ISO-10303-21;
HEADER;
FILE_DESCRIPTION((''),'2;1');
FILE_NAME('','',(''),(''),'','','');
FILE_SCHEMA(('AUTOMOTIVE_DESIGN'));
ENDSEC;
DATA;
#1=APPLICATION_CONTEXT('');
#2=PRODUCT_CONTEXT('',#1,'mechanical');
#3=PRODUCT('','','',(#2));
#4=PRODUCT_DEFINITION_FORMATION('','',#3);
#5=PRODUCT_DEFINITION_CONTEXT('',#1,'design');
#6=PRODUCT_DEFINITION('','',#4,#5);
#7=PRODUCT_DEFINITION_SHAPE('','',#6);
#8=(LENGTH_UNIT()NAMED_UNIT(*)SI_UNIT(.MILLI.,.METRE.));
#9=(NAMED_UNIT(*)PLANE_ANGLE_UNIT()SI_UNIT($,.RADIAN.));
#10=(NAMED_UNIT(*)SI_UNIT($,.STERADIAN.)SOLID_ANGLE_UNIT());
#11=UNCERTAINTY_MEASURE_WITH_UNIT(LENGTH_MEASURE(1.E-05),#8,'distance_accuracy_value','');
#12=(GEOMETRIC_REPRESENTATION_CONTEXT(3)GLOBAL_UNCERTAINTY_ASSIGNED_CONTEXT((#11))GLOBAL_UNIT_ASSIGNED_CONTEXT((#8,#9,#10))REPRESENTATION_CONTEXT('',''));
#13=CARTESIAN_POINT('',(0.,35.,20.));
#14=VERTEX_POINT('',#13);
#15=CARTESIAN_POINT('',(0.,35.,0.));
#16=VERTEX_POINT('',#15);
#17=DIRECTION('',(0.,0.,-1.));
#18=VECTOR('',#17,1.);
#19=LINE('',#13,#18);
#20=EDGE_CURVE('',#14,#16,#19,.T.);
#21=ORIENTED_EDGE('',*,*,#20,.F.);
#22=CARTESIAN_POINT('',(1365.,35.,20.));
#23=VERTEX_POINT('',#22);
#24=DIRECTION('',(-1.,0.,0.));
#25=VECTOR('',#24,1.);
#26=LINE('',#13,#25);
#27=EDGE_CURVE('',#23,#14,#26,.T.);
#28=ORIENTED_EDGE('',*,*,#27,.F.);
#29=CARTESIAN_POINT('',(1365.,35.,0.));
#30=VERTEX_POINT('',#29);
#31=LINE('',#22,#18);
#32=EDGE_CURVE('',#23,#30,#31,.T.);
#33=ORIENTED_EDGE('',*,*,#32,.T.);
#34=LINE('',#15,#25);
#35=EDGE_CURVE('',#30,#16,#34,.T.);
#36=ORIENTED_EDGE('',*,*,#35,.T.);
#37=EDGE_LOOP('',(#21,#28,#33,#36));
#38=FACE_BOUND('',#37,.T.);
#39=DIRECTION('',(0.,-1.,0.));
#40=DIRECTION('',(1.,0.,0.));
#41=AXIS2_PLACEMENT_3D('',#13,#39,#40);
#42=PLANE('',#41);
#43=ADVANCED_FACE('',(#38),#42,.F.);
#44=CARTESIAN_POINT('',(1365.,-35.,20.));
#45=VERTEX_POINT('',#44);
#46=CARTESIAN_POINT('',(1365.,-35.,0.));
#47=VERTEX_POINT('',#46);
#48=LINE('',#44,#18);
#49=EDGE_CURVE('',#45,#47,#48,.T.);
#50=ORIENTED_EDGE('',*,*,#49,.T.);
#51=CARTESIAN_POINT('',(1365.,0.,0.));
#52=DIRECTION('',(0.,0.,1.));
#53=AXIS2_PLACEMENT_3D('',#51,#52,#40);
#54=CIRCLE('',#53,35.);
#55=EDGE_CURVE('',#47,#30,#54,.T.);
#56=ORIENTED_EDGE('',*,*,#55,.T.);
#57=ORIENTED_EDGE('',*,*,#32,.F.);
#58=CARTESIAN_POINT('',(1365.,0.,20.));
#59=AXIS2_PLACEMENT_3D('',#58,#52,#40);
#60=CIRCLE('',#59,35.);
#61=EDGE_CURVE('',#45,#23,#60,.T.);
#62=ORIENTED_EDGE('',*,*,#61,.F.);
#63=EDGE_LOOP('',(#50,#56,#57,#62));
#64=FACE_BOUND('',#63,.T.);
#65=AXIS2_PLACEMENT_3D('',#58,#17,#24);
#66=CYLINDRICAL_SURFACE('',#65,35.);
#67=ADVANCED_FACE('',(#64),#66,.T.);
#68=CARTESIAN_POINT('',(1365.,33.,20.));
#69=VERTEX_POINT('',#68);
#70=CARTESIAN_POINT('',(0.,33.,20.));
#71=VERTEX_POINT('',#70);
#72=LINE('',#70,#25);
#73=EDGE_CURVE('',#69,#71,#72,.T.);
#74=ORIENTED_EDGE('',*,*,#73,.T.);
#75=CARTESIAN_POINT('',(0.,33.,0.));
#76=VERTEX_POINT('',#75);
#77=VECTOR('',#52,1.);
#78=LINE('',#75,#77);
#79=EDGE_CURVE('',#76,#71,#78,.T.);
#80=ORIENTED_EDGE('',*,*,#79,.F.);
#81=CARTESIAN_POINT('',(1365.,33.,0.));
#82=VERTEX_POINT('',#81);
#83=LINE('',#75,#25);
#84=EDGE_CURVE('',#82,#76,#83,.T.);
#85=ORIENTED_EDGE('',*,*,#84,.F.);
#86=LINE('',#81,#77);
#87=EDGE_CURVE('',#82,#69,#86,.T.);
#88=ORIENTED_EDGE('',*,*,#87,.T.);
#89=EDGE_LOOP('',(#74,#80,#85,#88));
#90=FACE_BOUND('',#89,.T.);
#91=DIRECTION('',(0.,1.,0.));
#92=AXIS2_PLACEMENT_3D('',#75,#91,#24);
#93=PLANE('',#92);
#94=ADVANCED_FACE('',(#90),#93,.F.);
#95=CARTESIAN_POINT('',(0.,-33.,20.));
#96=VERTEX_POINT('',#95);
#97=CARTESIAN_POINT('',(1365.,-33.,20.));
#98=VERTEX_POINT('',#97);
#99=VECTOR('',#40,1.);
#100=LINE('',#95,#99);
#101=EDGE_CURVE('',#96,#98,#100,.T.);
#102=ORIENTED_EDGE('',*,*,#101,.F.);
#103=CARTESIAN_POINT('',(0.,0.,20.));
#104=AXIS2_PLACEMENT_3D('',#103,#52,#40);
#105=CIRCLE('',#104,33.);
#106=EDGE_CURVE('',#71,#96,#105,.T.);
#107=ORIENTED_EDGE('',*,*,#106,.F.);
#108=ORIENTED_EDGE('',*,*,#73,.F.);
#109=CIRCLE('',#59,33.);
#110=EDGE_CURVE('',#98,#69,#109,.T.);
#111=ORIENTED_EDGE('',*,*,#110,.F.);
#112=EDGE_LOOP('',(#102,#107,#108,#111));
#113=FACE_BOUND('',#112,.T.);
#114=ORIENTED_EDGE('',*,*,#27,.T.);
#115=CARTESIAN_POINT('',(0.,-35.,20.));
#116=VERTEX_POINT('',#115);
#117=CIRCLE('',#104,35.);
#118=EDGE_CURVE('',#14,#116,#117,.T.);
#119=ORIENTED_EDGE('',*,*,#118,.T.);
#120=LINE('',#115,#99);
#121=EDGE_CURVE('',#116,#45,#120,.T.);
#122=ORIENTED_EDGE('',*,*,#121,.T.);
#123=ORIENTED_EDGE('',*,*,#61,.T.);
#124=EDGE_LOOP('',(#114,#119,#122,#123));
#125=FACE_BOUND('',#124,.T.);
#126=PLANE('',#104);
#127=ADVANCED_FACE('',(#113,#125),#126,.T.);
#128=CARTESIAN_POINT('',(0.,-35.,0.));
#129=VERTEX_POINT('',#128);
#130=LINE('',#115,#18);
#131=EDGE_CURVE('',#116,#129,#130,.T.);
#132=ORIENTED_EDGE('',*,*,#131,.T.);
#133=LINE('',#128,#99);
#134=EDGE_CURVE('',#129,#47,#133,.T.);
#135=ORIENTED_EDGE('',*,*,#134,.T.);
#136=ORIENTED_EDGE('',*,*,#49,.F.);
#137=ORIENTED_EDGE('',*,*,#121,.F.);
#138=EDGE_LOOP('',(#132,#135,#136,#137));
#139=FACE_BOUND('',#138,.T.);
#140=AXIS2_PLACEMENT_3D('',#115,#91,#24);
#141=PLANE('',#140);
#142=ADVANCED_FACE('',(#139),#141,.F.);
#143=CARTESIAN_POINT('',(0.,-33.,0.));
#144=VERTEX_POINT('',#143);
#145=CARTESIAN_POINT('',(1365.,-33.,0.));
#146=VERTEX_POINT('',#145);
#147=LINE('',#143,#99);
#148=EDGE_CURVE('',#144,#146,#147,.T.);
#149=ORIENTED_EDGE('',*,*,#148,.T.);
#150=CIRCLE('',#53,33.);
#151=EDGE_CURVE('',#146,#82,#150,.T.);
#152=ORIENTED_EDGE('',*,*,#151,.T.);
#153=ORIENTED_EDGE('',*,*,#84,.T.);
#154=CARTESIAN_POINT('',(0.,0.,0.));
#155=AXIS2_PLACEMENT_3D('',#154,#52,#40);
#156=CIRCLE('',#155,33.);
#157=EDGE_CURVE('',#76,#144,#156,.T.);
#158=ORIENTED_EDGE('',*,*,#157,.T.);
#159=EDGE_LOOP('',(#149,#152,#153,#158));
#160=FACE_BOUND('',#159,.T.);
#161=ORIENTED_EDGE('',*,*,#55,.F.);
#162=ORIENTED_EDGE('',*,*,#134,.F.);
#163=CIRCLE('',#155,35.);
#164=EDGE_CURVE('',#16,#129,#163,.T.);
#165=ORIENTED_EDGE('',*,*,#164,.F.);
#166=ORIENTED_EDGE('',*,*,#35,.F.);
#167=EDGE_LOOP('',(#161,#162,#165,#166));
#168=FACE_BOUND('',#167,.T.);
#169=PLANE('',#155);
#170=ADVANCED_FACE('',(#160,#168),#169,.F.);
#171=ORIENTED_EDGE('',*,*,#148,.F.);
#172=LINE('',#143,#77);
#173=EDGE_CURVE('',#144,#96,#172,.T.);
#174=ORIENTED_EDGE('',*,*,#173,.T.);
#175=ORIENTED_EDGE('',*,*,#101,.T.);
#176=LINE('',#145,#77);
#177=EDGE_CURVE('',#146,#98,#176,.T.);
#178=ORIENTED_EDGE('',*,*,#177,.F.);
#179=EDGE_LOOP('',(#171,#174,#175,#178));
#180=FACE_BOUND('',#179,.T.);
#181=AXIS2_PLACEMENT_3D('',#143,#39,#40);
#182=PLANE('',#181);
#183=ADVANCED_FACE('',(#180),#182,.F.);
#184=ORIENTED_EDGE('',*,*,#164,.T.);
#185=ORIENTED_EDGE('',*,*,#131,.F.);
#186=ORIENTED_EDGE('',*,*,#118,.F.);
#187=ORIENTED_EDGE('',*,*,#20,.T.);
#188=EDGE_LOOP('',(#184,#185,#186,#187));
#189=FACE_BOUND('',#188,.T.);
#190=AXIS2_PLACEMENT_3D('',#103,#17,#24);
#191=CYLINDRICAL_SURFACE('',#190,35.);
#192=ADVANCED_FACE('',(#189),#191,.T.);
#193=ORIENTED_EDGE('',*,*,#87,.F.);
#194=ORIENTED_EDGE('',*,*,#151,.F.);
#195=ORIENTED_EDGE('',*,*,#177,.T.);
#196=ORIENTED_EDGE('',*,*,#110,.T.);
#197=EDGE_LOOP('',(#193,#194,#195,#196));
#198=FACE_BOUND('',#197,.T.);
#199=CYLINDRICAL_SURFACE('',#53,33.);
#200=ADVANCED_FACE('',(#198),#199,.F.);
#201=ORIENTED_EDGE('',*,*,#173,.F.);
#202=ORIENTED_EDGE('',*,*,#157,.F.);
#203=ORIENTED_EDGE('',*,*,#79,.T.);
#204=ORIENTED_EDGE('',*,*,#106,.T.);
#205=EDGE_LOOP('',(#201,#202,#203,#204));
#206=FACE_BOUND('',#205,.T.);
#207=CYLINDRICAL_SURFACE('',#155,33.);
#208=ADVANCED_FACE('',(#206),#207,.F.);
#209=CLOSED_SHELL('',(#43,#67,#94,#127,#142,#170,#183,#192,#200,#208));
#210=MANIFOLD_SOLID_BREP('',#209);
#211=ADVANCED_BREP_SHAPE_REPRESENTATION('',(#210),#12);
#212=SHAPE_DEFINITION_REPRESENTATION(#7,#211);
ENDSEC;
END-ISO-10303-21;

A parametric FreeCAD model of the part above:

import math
import FreeCAD as App
import Part
import Sketcher

V = App.Vector
Q = App.Units.Quantity

doc = App.newDocument("Part")
body = doc.addObject("PartDesign::Body", "Body")

# Sketch on XY plane
sketch1 = body.newObject("Sketcher::SketchObject", "Sketch")
sketch1.AttachmentSupport = (doc.getObject("XY_Plane"), [""])
sketch1.MapMode = "FlatFace"
sketch1.addGeometry([
    Part.LineSegment(V(1365, 35, 0), V(0, 35, 0)),
    Part.ArcOfCircle(Part.Circle(V(0, 0, 0), V(0, 0, 1), 35), math.radians(90), math.radians(270)),
    Part.LineSegment(V(0, -35, 0), V(1365, -35, 0)),
    Part.ArcOfCircle(Part.Circle(V(1365, 0, 0), V(0, 0, 1), 35), math.radians(-90), math.radians(90)),
], False)
sketch1.addConstraint([
    Sketcher.Constraint("Tangent", 0, 2, 1, 1),
    Sketcher.Constraint("Tangent", 1, 2, 2, 1),
    Sketcher.Constraint("Tangent", 2, 2, 3, 1),
    Sketcher.Constraint("Tangent", 3, 2, 0, 1),
    Sketcher.Constraint("Horizontal", 0),
    Sketcher.Constraint("Horizontal", 2),
    Sketcher.Constraint("Coincident", 1, 3, -1, 1),
    Sketcher.Constraint("Radius", 1, Q("35 mm")),
    Sketcher.Constraint("DistanceX", 0, 2, 0, 1, Q("1365 mm")),
])
pad1 = body.newObject("PartDesign::Pad", "Pad")
pad1.Profile = sketch1
pad1.Length = 20

# Sketch on XY plane
sketch2 = body.newObject("Sketcher::SketchObject", "Sketch001")
sketch2.AttachmentSupport = (doc.getObject("XY_Plane"), [""])
sketch2.MapMode = "FlatFace"
sketch2.AttachmentOffset = App.Placement(V(0, 0, 20), App.Rotation())
sketch2.addGeometry([
    Part.LineSegment(V(1365, 33, 0), V(0, 33, 0)),
    Part.ArcOfCircle(Part.Circle(V(0, 0, 0), V(0, 0, 1), 33), math.radians(90), math.radians(270)),
    Part.LineSegment(V(0, -33, 0), V(1365, -33, 0)),
    Part.ArcOfCircle(Part.Circle(V(1365, 0, 0), V(0, 0, 1), 33), math.radians(-90), math.radians(90)),
], False)
sketch2.addConstraint([
    Sketcher.Constraint("Tangent", 0, 2, 1, 1),
    Sketcher.Constraint("Tangent", 1, 2, 2, 1),
    Sketcher.Constraint("Tangent", 2, 2, 3, 1),
    Sketcher.Constraint("Tangent", 3, 2, 0, 1),
    Sketcher.Constraint("Horizontal", 0),
    Sketcher.Constraint("Horizontal", 2),
    Sketcher.Constraint("Coincident", 1, 3, -1, 1),
    Sketcher.Constraint("Radius", 1, Q("33 mm")),
    Sketcher.Constraint("DistanceX", 0, 2, 0, 1, Q("1365 mm")),
])
pocket1 = body.newObject("PartDesign::Pocket", "Pocket")
pocket1.Profile = sketch2
pocket1.Length = 20

doc.recompute()
